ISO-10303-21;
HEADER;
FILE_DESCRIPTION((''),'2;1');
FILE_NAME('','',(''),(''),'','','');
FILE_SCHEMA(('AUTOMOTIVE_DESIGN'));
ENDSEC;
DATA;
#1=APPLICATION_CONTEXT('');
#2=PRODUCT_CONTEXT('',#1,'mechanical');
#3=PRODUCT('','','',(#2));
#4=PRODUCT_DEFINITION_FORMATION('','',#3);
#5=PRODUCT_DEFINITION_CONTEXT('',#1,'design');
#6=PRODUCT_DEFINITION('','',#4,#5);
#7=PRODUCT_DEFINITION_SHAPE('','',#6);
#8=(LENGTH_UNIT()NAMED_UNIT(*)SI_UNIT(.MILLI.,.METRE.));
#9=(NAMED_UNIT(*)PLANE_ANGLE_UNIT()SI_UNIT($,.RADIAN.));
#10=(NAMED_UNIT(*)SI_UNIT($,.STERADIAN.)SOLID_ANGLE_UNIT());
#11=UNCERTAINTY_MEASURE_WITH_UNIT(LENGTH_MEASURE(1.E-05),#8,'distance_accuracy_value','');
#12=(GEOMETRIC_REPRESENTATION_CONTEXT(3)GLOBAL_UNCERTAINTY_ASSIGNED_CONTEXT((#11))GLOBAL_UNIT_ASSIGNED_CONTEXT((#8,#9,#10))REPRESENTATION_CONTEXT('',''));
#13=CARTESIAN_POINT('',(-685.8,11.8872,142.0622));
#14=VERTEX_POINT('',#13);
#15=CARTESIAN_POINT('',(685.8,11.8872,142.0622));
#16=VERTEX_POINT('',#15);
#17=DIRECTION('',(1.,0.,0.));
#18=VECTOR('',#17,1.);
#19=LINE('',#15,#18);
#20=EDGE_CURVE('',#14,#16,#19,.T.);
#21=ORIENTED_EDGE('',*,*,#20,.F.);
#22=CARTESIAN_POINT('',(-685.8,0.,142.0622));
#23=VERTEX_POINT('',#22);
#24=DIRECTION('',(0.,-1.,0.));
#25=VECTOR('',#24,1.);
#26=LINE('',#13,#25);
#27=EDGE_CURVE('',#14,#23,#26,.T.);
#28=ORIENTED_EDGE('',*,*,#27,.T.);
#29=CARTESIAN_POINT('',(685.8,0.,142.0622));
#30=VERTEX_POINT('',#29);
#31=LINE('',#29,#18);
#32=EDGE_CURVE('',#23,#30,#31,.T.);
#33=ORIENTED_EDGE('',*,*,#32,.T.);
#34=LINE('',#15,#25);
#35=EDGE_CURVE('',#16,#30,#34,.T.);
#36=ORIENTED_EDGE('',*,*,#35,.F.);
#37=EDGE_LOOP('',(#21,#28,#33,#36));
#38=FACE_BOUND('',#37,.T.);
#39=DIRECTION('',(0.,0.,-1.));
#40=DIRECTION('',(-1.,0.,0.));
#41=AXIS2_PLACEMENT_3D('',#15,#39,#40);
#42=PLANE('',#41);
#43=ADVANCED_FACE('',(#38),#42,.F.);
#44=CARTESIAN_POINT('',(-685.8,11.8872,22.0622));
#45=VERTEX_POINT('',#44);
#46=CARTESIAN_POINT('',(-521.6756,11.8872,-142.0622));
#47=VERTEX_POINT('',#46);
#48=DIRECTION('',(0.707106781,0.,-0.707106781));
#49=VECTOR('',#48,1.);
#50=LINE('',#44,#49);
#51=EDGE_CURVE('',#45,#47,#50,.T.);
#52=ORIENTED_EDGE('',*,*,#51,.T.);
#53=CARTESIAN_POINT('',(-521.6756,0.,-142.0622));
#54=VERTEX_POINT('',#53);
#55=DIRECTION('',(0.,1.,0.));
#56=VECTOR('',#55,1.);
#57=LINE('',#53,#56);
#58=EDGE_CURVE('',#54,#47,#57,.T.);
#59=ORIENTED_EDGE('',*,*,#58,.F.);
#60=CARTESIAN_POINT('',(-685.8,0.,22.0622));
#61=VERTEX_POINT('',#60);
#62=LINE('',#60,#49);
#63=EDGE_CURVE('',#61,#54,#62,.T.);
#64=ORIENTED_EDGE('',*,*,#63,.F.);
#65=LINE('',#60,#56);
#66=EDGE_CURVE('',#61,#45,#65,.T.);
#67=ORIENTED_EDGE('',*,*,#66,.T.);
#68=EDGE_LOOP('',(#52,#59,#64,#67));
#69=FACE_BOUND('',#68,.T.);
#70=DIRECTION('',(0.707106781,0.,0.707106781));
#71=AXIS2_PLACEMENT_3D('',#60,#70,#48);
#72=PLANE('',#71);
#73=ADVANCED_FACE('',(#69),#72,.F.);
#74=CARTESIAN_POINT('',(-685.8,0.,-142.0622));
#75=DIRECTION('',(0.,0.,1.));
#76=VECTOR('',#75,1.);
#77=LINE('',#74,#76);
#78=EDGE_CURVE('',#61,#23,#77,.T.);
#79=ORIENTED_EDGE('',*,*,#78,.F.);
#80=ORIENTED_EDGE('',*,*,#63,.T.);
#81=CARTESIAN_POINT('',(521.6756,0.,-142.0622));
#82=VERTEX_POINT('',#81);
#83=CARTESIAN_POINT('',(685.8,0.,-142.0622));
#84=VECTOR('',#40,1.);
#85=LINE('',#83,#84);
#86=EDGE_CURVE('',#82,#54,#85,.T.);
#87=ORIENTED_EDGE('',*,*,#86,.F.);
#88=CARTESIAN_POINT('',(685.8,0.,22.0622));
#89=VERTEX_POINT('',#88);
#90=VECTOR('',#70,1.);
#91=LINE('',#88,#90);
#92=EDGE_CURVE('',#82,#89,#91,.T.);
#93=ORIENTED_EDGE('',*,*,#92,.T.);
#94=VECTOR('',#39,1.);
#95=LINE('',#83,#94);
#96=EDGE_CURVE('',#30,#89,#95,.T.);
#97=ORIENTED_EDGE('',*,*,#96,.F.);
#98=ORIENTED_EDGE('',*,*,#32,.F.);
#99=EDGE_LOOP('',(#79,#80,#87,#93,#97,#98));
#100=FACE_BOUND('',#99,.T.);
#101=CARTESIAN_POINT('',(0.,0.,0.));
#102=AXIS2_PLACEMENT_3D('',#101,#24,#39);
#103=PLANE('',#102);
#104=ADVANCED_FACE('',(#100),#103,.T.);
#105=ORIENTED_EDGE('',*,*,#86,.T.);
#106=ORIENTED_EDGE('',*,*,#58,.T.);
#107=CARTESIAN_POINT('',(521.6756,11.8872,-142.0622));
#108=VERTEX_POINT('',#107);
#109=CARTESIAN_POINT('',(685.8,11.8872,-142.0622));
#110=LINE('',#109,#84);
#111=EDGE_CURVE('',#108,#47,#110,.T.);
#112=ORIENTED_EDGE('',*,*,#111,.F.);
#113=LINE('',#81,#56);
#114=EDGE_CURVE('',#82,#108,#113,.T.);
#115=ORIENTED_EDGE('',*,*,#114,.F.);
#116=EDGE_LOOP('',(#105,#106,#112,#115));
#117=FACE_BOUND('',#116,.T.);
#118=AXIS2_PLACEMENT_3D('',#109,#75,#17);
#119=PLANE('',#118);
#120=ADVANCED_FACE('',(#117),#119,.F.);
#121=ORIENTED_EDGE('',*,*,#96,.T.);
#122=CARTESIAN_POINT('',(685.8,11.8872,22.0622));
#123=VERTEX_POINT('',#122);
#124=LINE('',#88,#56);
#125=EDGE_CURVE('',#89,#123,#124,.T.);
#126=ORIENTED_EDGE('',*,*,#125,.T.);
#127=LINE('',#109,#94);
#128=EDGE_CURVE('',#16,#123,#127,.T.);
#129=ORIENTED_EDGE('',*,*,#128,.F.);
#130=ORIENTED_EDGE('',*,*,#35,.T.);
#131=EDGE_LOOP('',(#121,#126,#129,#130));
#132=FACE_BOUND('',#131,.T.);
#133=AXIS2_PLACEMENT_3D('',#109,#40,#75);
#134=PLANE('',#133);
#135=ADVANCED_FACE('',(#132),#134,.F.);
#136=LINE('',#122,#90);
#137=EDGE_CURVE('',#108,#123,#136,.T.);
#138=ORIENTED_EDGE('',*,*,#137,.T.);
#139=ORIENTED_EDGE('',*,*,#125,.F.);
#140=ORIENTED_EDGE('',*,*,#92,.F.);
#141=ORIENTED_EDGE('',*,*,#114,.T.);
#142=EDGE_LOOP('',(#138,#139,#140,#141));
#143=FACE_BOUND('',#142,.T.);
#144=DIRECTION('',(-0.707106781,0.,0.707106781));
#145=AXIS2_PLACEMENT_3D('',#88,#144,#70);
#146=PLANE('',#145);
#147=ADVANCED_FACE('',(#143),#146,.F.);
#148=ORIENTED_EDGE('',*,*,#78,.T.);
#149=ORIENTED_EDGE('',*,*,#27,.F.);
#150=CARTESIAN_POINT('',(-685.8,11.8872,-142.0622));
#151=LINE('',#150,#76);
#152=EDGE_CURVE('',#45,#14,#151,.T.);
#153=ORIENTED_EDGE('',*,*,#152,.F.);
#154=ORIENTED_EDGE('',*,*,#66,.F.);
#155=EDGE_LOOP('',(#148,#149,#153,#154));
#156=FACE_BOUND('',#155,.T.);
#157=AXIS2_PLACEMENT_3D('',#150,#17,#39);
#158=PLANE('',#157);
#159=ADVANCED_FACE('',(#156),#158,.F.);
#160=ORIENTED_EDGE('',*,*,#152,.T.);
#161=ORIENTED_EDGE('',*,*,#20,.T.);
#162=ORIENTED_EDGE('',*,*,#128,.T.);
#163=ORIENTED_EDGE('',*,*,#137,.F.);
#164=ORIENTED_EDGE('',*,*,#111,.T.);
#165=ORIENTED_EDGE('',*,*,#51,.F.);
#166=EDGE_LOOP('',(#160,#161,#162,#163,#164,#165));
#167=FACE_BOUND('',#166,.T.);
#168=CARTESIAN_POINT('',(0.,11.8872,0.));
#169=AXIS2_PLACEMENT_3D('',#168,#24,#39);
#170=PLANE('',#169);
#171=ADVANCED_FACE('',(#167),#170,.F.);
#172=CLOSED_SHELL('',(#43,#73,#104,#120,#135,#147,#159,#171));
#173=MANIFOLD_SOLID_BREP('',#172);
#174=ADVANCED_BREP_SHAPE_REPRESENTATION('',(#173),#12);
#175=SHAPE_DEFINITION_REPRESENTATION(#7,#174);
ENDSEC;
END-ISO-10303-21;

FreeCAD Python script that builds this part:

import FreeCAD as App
import Part
import Sketcher
Q = App.Units.Quantity

doc = App.newDocument("Part")
params = doc.addObject("Spreadsheet::Sheet", "Params")
for row, (alias, value) in enumerate([
    ("sketch1_width", "54 in"),
    ("sketch1_height", "11.186 in"),
    ("pad1_length", "0.468 in"),
], start=1):
    params.set(f"A{row}", alias)
    params.set(f"B{row}", "=" + value)
    params.setAlias(f"B{row}", alias)

body = doc.addObject("PartDesign::Body", "Body")

sketch1 = doc.addObject("Sketcher::SketchObject", "Sketch")
body.addObject(sketch1)
sketch1.AttachmentSupport = (doc.XZ_Plane, [""])
sketch1.MapMode = "FlatFace"
sketch1.addGeometry([
    Part.LineSegment(App.Vector(-686, -142, 0), App.Vector(-686, 142, 0)),
    Part.LineSegment(App.Vector(-686, 142, 0), App.Vector(686, 142, 0)),
    Part.LineSegment(App.Vector(686, 142, 0), App.Vector(686, -142, 0)),
    Part.LineSegment(App.Vector(686, -142, 0), App.Vector(-686, -142, 0)),
], False)
sketch1.addConstraint([
    Sketcher.Constraint("Coincident", 0, 2, 1, 1),
    Sketcher.Constraint("Coincident", 1, 2, 2, 1),
    Sketcher.Constraint("Coincident", 2, 2, 3, 1),
    Sketcher.Constraint("Coincident", 3, 2, 0, 1),
    Sketcher.Constraint("Vertical", 0),
    Sketcher.Constraint("Horizontal", 1),
    Sketcher.Constraint("Vertical", 2),
    Sketcher.Constraint("Horizontal", 3),
    Sketcher.Constraint("Symmetric", 0, 2, 2, 2, -1, 1),
    Sketcher.Constraint("DistanceX", 1, 1, 1, 2, Q("54 in")),
    Sketcher.Constraint("DistanceY", 0, 1, 0, 2, Q("11.186 in")),
])
sketch1.setExpression("Constraints[9]", "Params.sketch1_width")
sketch1.setExpression("Constraints[10]", "Params.sketch1_height")
pad1 = doc.addObject("PartDesign::Pad", "Pad")
body.addObject(pad1)
pad1.Profile = sketch1
pad1.setExpression("Length", "Params.pad1_length")
pad1.Reversed = True

sketch2 = doc.addObject("Sketcher::SketchObject", "Sketch001")
body.addObject(sketch2)
sketch2.AttachmentSupport = (doc.XZ_Plane, [""])
sketch2.MapMode = "FlatFace"
sketch2.AttachmentOffset = App.Placement(App.Vector(0, 0, -0.468 * 25.4), App.Rotation())
sketch2.addGeometry([
    Part.LineSegment(App.Vector(-686, 22, 0), App.Vector(-522, -142, 0)),
    Part.LineSegment(App.Vector(-522, -142, 0), App.Vector(-686, -142, 0)),
    Part.LineSegment(App.Vector(-686, -142, 0), App.Vector(-686, 22, 0)),
    Part.LineSegment(App.Vector(686, 22, 0), App.Vector(686, -142, 0)),
    Part.LineSegment(App.Vector(686, -142, 0), App.Vector(522, -142, 0)),
    Part.LineSegment(App.Vector(522, -142, 0), App.Vector(686, 22, 0)),
], False)
sketch2.addConstraint([
    Sketcher.Constraint("Coincident", 0, 2, 1, 1),
    Sketcher.Constraint("Coincident", 1, 2, 2, 1),
    Sketcher.Constraint("Coincident", 2, 2, 0, 1),
    Sketcher.Constraint("Coincident", 3, 2, 4, 1),
    Sketcher.Constraint("Coincident", 4, 2, 5, 1),
    Sketcher.Constraint("Coincident", 5, 2, 3, 1),
    Sketcher.Constraint("Horizontal", 1),
    Sketcher.Constraint("Vertical", 2),
    Sketcher.Constraint("Vertical", 3),
    Sketcher.Constraint("Horizontal", 4),
    Sketcher.Constraint("Symmetric", 1, 2, 3, 2, -2),
    Sketcher.Constraint("Perpendicular", 0, 5),
    Sketcher.Constraint("Horizontal", 2, 2, 5, 2),
    Sketcher.Constraint("Equal", 1, 4),
    Sketcher.Constraint("DistanceX", 1, 2, -1, 1, Q("27 in")),
    Sketcher.Constraint("DistanceY", 0, 2, -1, 1, Q("5.593 in")),
    Sketcher.Constraint("DistanceX", 1, 2, 1, 1, 164.1244),
])
pocket1 = doc.addObject("PartDesign::Pocket", "Pocket")
body.addObject(pocket1)
pocket1.Profile = sketch2
pocket1.Type = "ThroughAll"
pocket1.Reversed = True

doc.recompute()
